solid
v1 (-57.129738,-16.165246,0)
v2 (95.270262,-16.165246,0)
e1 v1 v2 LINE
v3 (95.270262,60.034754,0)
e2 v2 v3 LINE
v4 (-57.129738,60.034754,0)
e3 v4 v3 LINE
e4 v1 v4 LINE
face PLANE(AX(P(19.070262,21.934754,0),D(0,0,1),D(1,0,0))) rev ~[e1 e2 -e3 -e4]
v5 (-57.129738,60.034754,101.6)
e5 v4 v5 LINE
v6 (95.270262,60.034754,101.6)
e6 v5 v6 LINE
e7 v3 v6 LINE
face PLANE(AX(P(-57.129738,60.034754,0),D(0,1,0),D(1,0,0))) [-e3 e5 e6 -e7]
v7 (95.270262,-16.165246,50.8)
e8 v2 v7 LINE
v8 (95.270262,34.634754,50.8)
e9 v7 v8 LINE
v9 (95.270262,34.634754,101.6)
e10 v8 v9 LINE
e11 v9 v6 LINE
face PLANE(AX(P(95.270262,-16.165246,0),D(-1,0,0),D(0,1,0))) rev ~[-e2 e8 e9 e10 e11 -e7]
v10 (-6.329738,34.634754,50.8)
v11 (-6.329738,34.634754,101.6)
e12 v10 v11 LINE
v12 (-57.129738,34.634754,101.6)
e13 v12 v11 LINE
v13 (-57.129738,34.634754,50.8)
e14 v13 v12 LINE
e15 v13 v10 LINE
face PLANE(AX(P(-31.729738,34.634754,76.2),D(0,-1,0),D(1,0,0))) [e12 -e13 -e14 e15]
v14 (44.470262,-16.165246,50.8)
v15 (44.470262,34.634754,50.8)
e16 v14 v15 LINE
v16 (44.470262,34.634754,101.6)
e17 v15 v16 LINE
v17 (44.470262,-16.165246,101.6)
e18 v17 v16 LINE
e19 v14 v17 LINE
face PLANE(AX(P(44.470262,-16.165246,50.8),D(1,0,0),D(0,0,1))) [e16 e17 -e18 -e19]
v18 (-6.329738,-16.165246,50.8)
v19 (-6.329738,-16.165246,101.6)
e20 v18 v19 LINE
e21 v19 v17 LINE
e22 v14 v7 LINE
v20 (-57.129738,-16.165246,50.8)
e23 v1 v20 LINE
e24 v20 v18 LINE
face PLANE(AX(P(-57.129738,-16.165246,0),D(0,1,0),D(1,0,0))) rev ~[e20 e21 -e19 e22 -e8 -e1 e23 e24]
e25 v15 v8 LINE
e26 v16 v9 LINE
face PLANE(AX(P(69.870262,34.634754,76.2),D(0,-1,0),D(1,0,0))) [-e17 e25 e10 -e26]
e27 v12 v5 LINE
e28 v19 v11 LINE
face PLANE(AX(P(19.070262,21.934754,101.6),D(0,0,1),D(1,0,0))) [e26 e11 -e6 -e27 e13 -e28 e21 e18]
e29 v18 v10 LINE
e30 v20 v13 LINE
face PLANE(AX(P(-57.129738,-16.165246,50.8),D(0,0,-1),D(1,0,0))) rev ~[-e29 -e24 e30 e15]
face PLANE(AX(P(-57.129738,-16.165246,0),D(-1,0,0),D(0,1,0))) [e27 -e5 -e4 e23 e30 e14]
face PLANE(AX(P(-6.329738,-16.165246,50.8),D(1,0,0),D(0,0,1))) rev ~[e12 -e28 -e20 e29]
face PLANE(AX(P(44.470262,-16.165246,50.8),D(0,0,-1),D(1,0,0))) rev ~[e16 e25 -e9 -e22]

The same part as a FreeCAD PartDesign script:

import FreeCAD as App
import Part
import Sketcher
Q = App.Units.Quantity


def add_polygon(sketch, points):
    """Adds a closed chain of lines whose ends are joined by coincident constraints."""
    first, n = sketch.GeometryCount, len(points)
    for a, b in zip(points, points[1:] + points[:1]):
        sketch.addGeometry(Part.LineSegment(App.Vector(*a, 0), App.Vector(*b, 0)), False)
    for i in range(n):
        sketch.addConstraint(Sketcher.Constraint("Coincident", first + i, 2, first + (i + 1) % n, 1))

doc = App.newDocument("Part")
body = doc.addObject("PartDesign::Body", "Body")

sketch1 = doc.addObject("Sketcher::SketchObject", "Sketch")
body.addObject(sketch1)
sketch1.AttachmentSupport = (doc.XY_Plane, [""])
sketch1.MapMode = "FlatFace"
add_polygon(sketch1, [(-57, 60), (-57, -16), (95, -16), (95, 60)])
sketch1.addConstraint(Sketcher.Constraint("Vertical", 0))
sketch1.addConstraint(Sketcher.Constraint("Horizontal", 1))
sketch1.addConstraint(Sketcher.Constraint("Vertical", 2))
sketch1.addConstraint(Sketcher.Constraint("Horizontal", 3))
sketch1.addConstraint(Sketcher.Constraint("DistanceX", 1, 1, 1, 2, Q("6 in")))
sketch1.addConstraint(Sketcher.Constraint("DistanceY", 0, 2, 0, 1, Q("3 in")))
sketch1.addConstraint(Sketcher.Constraint("DistanceX", 0, 2, -1, 1, 57.129738))
sketch1.addConstraint(Sketcher.Constraint("DistanceY", 0, 2, -1, 1, 16.165246))
pad1 = doc.addObject("PartDesign::Pad", "Pad")
body.addObject(pad1)
pad1.Profile = sketch1
pad1.Length = Q("4 in")

sketch2 = doc.addObject("Sketcher::SketchObject", "Sketch001")
body.addObject(sketch2)
sketch2.AttachmentSupport = (doc.XZ_Plane, [""])
sketch2.MapMode = "FlatFace"
sketch2.AttachmentOffset = App.Placement(App.Vector(0, 0, 16.165246), App.Rotation())
add_polygon(sketch2, [(-57, 102), (-57, 51), (-6, 51), (-6, 102)])
add_polygon(sketch2, [(44, 102), (44, 51), (95, 51), (95, 102)])
sketch2.addConstraint(Sketcher.Constraint("Vertical", 0))
sketch2.addConstraint(Sketcher.Constraint("Horizontal", 1))
sketch2.addConstraint(Sketcher.Constraint("Vertical", 2))
sketch2.addConstraint(Sketcher.Constraint("Horizontal", 3))
sketch2.addConstraint(Sketcher.Constraint("Vertical", 4))
sketch2.addConstraint(Sketcher.Constraint("Horizontal", 5))
sketch2.addConstraint(Sketcher.Constraint("Vertical", 6))
sketch2.addConstraint(Sketcher.Constraint("Horizontal", 7))
sketch2.addConstraint(Sketcher.Constraint("Horizontal", 1, 2, 4, 2))
sketch2.addConstraint(Sketcher.Constraint("Horizontal", 3, 2, 6, 2))
sketch2.addConstraint(Sketcher.Constraint("Equal", 3, 5))
sketch2.addConstraint(Sketcher.Constraint("Equal", 7, 0))
sketch2.addConstraint(Sketcher.Constraint("DistanceX", 1, 1, 1, 2, Q("2 in")))
sketch2.addConstraint(Sketcher.Constraint("DistanceY", -1, 1, 0, 2, Q("2 in")))
sketch2.addConstraint(Sketcher.Constraint("DistanceX", 1, 2, 4, 2, Q("2 in")))
sketch2.addConstraint(Sketcher.Constraint("DistanceX", 0, 2, -1, 1, 57.129738))
pocket1 = doc.addObject("PartDesign::Pocket", "Pocket")
body.addObject(pocket1)
pocket1.Profile = sketch2
pocket1.Length = Q("2 in")

doc.recompute()
